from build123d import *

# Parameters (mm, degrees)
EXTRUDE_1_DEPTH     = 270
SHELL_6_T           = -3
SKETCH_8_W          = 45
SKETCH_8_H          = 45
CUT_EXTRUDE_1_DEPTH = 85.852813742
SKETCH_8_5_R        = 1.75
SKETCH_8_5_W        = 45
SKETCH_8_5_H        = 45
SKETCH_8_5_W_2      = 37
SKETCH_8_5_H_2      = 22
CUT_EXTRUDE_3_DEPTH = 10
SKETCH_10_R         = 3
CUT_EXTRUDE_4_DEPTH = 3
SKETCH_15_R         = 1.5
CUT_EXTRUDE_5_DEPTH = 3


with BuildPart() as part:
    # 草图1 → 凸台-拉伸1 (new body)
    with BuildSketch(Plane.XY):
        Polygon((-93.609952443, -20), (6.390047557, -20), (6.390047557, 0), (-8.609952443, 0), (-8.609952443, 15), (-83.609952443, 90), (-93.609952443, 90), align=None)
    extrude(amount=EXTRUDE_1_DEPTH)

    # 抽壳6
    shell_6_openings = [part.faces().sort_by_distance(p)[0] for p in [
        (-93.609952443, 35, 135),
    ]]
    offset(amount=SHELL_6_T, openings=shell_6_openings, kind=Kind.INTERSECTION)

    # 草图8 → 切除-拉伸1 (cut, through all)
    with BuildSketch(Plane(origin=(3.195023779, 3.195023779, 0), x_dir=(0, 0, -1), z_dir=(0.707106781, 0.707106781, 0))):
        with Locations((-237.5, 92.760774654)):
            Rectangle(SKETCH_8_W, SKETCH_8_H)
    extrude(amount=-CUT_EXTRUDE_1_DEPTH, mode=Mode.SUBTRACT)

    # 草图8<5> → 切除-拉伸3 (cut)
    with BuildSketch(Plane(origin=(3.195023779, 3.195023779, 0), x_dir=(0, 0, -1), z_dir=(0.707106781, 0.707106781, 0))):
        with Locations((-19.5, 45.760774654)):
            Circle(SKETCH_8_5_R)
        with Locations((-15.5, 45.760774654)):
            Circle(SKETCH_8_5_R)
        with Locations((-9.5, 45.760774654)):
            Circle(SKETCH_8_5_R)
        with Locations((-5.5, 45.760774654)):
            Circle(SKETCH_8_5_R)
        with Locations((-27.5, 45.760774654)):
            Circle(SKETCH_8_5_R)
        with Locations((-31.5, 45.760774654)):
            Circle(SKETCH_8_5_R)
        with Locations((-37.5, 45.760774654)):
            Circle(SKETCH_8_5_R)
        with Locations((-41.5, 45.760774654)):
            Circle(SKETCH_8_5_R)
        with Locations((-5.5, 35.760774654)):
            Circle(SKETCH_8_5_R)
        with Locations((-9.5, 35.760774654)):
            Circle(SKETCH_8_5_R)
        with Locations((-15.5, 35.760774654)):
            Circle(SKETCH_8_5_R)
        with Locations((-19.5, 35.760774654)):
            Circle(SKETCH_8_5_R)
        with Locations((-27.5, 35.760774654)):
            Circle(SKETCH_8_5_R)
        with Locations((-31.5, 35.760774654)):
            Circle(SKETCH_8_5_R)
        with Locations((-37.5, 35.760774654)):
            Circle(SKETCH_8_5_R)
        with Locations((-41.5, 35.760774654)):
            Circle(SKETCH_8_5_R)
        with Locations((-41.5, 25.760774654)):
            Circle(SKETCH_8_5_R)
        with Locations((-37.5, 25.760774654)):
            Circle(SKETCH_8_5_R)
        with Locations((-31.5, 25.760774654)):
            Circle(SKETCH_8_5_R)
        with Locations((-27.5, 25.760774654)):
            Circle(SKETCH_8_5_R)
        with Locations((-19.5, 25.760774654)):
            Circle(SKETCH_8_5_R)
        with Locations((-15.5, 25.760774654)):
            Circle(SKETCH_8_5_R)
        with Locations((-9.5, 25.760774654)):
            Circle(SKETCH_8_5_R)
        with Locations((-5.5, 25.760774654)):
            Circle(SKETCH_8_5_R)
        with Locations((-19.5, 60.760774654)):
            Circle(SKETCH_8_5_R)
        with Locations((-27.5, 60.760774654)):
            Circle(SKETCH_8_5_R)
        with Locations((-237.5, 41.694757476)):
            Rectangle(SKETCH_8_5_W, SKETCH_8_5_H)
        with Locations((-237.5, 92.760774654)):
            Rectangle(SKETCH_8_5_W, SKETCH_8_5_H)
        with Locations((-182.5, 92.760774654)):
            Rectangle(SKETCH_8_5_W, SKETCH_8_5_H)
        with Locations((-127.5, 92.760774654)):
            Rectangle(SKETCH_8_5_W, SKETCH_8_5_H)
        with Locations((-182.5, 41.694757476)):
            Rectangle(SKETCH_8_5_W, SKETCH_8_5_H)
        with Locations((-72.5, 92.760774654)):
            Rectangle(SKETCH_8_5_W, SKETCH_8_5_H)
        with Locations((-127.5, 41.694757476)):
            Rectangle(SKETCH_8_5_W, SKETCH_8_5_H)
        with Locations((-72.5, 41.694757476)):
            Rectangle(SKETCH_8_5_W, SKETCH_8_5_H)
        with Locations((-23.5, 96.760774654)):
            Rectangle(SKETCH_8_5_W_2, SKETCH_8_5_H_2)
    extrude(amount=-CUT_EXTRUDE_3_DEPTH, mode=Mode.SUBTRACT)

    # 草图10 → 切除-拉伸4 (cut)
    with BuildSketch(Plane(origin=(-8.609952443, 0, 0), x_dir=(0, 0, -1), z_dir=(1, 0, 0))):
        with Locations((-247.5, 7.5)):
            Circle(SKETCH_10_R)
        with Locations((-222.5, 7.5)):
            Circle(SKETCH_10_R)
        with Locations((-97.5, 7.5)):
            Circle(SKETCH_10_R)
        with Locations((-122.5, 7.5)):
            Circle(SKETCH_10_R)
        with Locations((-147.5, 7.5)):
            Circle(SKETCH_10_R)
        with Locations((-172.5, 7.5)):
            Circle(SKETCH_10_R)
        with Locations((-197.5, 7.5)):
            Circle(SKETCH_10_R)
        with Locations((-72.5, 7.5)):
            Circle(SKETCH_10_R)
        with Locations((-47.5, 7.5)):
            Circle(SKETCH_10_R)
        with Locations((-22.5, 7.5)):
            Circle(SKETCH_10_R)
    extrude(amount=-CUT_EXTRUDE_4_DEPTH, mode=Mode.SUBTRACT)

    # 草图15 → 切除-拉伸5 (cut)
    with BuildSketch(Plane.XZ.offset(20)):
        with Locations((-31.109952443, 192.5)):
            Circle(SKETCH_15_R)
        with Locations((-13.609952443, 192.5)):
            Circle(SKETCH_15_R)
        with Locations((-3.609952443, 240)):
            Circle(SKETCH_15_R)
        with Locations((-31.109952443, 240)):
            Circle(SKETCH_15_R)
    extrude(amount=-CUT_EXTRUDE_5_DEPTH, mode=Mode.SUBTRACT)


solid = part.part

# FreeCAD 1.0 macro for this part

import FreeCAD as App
import Part
import Sketcher

V = App.Vector


def faces_at(feature, points):
    """Names of the faces that lie closest to the given points."""
    faces = feature.Shape.Faces
    near = lambda p: min(range(len(faces)), key=lambda i: faces[i].distToShape(Part.Vertex(*p))[0])
    return sorted({f"Face{near(p) + 1}" for p in points})


def add_polygon(sketch, points):
    """Adds a closed chain of lines whose ends are joined by coincident constraints."""
    first, n = sketch.GeometryCount, len(points)
    for a, b in zip(points, points[1:] + points[:1]):
        sketch.addGeometry(Part.LineSegment(App.Vector(*a, 0), App.Vector(*b, 0)), False)
    for i in range(n):
        sketch.addConstraint(Sketcher.Constraint("Coincident", first + i, 2, first + (i + 1) % n, 1))

doc = App.newDocument("Part")
body = doc.addObject("PartDesign::Body", "Body")

# Sketch on XY plane
sketch1 = body.newObject("Sketcher::SketchObject", "Sketch")
sketch1.AttachmentSupport = (doc.getObject("XY_Plane"), [""])
sketch1.MapMode = "FlatFace"
add_polygon(sketch1, [(-93.609952, -20), (6.390048, -20), (6.390048, 0), (-8.609952, 0), (-8.609952, 15), (-83.609952, 90), (-93.609952, 90)])  # lines 0-6
sketch1.addConstraint([
    Sketcher.Constraint("Horizontal", 0),
    Sketcher.Constraint("Vertical", 1),
    Sketcher.Constraint("Horizontal", 2),
    Sketcher.Constraint("Vertical", 3),
    Sketcher.Constraint("Horizontal", 5),
    Sketcher.Constraint("Vertical", 6),
    Sketcher.Constraint("PointOnObject", 1, 2, -1),
    Sketcher.Constraint("Equal", 2, 3),
    Sketcher.Constraint("DistanceX", 0, 1, 0, 2, 100.0),
    Sketcher.Constraint("DistanceX", 2, 2, 2, 1, 15.0),
    Sketcher.Constraint("DistanceX", 5, 2, 5, 1, 10.0),
    Sketcher.Constraint("DistanceY", 1, 1, 1, 2, 20.0),
    Sketcher.Constraint("DistanceY", 6, 2, 6, 1, 110.0),
    Sketcher.Constraint("DistanceX", -1, 1, 0, 2, 6.390048),
])
pad1 = body.newObject("PartDesign::Pad", "Pad")
pad1.Profile = sketch1
pad1.Length = 270
doc.recompute()

thickness = body.newObject("PartDesign::Thickness", "Thickness")
thickness.Base = (pad1, faces_at(pad1, [(-93.61, 35, 135)]))
thickness.Value = 3
thickness.Reversed = True
thickness.Join = "Intersection"

# Sketch on an angled plane
sketch2 = body.newObject("Sketcher::SketchObject", "Sketch001")
sketch2.Placement = App.Placement(V(3.195024, 3.195024, 0), App.Rotation(V(0, 0, -1), V(-0.707106781, 0.707106781, 0), V(0.707106781, 0.707106781, 0), "ZXY"))
add_polygon(sketch2, [(-260, 115.260775), (-260, 70.260775), (-215, 70.260775), (-215, 115.260775)])  # lines 0-3
sketch2.addConstraint([
    Sketcher.Constraint("Vertical", 0),
    Sketcher.Constraint("Horizontal", 1),
    Sketcher.Constraint("Vertical", 2),
    Sketcher.Constraint("Horizontal", 3),
    Sketcher.Constraint("Equal", 3, 0),
    Sketcher.Constraint("DistanceX", 1, 1, 1, 2, 45.0),
    Sketcher.Constraint("DistanceX", 0, 2, -1, 1, 260.0),
    Sketcher.Constraint("DistanceY", -1, 1, 0, 2, 70.260775),
])
pocket1 = body.newObject("PartDesign::Pocket", "Pocket")
pocket1.Profile = sketch2
pocket1.Type = "ThroughAll"

# Sketch on an angled plane
sketch3 = body.newObject("Sketcher::SketchObject", "Sketch002")
sketch3.Placement = App.Placement(V(3.195024, 3.195024, 0), App.Rotation(V(0, 0, -1), V(-0.707106781, 0.707106781, 0), V(0.707106781, 0.707106781, 0), "ZXY"))
sketch3.addGeometry(Part.Circle(V(-19.5, 45.760775, 0), V(0, 0, 1), 1.75), False)  # 0
sketch3.addGeometry(Part.Circle(V(-15.5, 45.760775, 0), V(0, 0, 1), 1.75), False)  # 1
sketch3.addGeometry(Part.Circle(V(-9.5, 45.760775, 0), V(0, 0, 1), 1.75), False)  # 2
sketch3.addGeometry(Part.Circle(V(-5.5, 45.760775, 0), V(0, 0, 1), 1.75), False)  # 3
sketch3.addGeometry(Part.Circle(V(-27.5, 45.760775, 0), V(0, 0, 1), 1.75), False)  # 4
sketch3.addGeometry(Part.Circle(V(-31.5, 45.760775, 0), V(0, 0, 1), 1.75), False)  # 5
sketch3.addGeometry(Part.Circle(V(-37.5, 45.760775, 0), V(0, 0, 1), 1.75), False)  # 6
sketch3.addGeometry(Part.Circle(V(-41.5, 45.760775, 0), V(0, 0, 1), 1.75), False)  # 7
sketch3.addGeometry(Part.Circle(V(-5.5, 35.760775, 0), V(0, 0, 1), 1.75), False)  # 8
sketch3.addGeometry(Part.Circle(V(-9.5, 35.760775, 0), V(0, 0, 1), 1.75), False)  # 9
sketch3.addGeometry(Part.Circle(V(-15.5, 35.760775, 0), V(0, 0, 1), 1.75), False)  # 10
sketch3.addGeometry(Part.Circle(V(-19.5, 35.760775, 0), V(0, 0, 1), 1.75), False)  # 11
sketch3.addGeometry(Part.Circle(V(-27.5, 35.760775, 0), V(0, 0, 1), 1.75), False)  # 12
sketch3.addGeometry(Part.Circle(V(-31.5, 35.760775, 0), V(0, 0, 1), 1.75), False)  # 13
sketch3.addGeometry(Part.Circle(V(-37.5, 35.760775, 0), V(0, 0, 1), 1.75), False)  # 14
sketch3.addGeometry(Part.Circle(V(-41.5, 35.760775, 0), V(0, 0, 1), 1.75), False)  # 15
sketch3.addGeometry(Part.Circle(V(-41.5, 25.760775, 0), V(0, 0, 1), 1.75), False)  # 16
sketch3.addGeometry(Part.Circle(V(-37.5, 25.760775, 0), V(0, 0, 1), 1.75), False)  # 17
sketch3.addGeometry(Part.Circle(V(-31.5, 25.760775, 0), V(0, 0, 1), 1.75), False)  # 18
sketch3.addGeometry(Part.Circle(V(-27.5, 25.760775, 0), V(0, 0, 1), 1.75), False)  # 19
sketch3.addGeometry(Part.Circle(V(-19.5, 25.760775, 0), V(0, 0, 1), 1.75), False)  # 20
sketch3.addGeometry(Part.Circle(V(-15.5, 25.760775, 0), V(0, 0, 1), 1.75), False)  # 21
sketch3.addGeometry(Part.Circle(V(-9.5, 25.760775, 0), V(0, 0, 1), 1.75), False)  # 22
sketch3.addGeometry(Part.Circle(V(-5.5, 25.760775, 0), V(0, 0, 1), 1.75), False)  # 23
sketch3.addGeometry(Part.Circle(V(-19.5, 60.760775, 0), V(0, 0, 1), 1.75), False)  # 24
sketch3.addGeometry(Part.Circle(V(-27.5, 60.760775, 0), V(0, 0, 1), 1.75), False)  # 25
add_polygon(sketch3, [(-260, 64.194757), (-260, 19.194757), (-215, 19.194757), (-215, 64.194757)])  # lines 26-29
add_polygon(sketch3, [(-260, 115.260775), (-260, 70.260775), (-215, 70.260775), (-215, 115.260775)])  # lines 30-33
add_polygon(sketch3, [(-205, 115.260775), (-205, 70.260775), (-160, 70.260775), (-160, 115.260775)])  # lines 34-37
add_polygon(sketch3, [(-150, 115.260775), (-150, 70.260775), (-105, 70.260775), (-105, 115.260775)])  # lines 38-41
add_polygon(sketch3, [(-205, 64.194757), (-205, 19.194757), (-160, 19.194757), (-160, 64.194757)])  # lines 42-45
add_polygon(sketch3, [(-95, 115.260775), (-95, 70.260775), (-50, 70.260775), (-50, 115.260775)])  # lines 46-49
add_polygon(sketch3, [(-150, 64.194757), (-150, 19.194757), (-105, 19.194757), (-105, 64.194757)])  # lines 50-53
add_polygon(sketch3, [(-95, 64.194757), (-95, 19.194757), (-50, 19.194757), (-50, 64.194757)])  # lines 54-57
add_polygon(sketch3, [(-42, 107.760775), (-42, 85.760775), (-5, 85.760775), (-5, 107.760775)])  # lines 58-61
sketch3.addConstraint([
    Sketcher.Constraint("Vertical", 26),
    Sketcher.Constraint("Horizontal", 27),
    Sketcher.Constraint("Vertical", 28),
    Sketcher.Constraint("Horizontal", 29),
    Sketcher.Constraint("Vertical", 30),
    Sketcher.Constraint("Horizontal", 31),
    Sketcher.Constraint("Vertical", 32),
    Sketcher.Constraint("Horizontal", 33),
    Sketcher.Constraint("Vertical", 34),
    Sketcher.Constraint("Horizontal", 35),
    Sketcher.Constraint("Vertical", 36),
    Sketcher.Constraint("Horizontal", 37),
    Sketcher.Constraint("Vertical", 38),
    Sketcher.Constraint("Horizontal", 39),
    Sketcher.Constraint("Vertical", 40),
    Sketcher.Constraint("Horizontal", 41),
    Sketcher.Constraint("Vertical", 42),
    Sketcher.Constraint("Horizontal", 43),
    Sketcher.Constraint("Vertical", 44),
    Sketcher.Constraint("Horizontal", 45),
    Sketcher.Constraint("Vertical", 46),
    Sketcher.Constraint("Horizontal", 47),
    Sketcher.Constraint("Vertical", 48),
    Sketcher.Constraint("Horizontal", 49),
    Sketcher.Constraint("Vertical", 50),
    Sketcher.Constraint("Horizontal", 51),
    Sketcher.Constraint("Vertical", 52),
    Sketcher.Constraint("Horizontal", 53),
    Sketcher.Constraint("Vertical", 54),
    Sketcher.Constraint("Horizontal", 55),
    Sketcher.Constraint("Vertical", 56),
    Sketcher.Constraint("Horizontal", 57),
    Sketcher.Constraint("Vertical", 58),
    Sketcher.Constraint("Horizontal", 59),
    Sketcher.Constraint("Vertical", 60),
    Sketcher.Constraint("Horizontal", 61),
    Sketcher.Constraint("Equal", 0, 1),
    Sketcher.Constraint("Equal", 1, 2),
    Sketcher.Constraint("Equal", 2, 3),
    Sketcher.Constraint("Equal", 3, 4),
    Sketcher.Constraint("Equal", 4, 5),
    Sketcher.Constraint("Equal", 5, 6),
    Sketcher.Constraint("Equal", 6, 7),
    Sketcher.Constraint("Equal", 7, 8),
    Sketcher.Constraint("Equal", 8, 9),
    Sketcher.Constraint("Equal", 9, 10),
    Sketcher.Constraint("Equal", 10, 11),
    Sketcher.Constraint("Equal", 11, 12),
    Sketcher.Constraint("Equal", 12, 13),
    Sketcher.Constraint("Equal", 13, 14),
    Sketcher.Constraint("Equal", 14, 15),
    Sketcher.Constraint("Equal", 15, 16),
    Sketcher.Constraint("Equal", 16, 17),
    Sketcher.Constraint("Equal", 17, 18),
    Sketcher.Constraint("Equal", 18, 19),
    Sketcher.Constraint("Equal", 19, 20),
    Sketcher.Constraint("Equal", 20, 21),
    Sketcher.Constraint("Equal", 21, 22),
    Sketcher.Constraint("Equal", 22, 23),
    Sketcher.Constraint("Equal", 23, 24),
    Sketcher.Constraint("Equal", 24, 25),
    Sketcher.Constraint("Horizontal", 0, 3, 1, 3),
    Sketcher.Constraint("Horizontal", 1, 3, 2, 3),
    Sketcher.Constraint("Horizontal", 2, 3, 3, 3),
    Sketcher.Constraint("Horizontal", 3, 3, 4, 3),
    Sketcher.Constraint("Horizontal", 4, 3, 5, 3),
    Sketcher.Constraint("Horizontal", 5, 3, 6, 3),
    Sketcher.Constraint("Horizontal", 6, 3, 7, 3),
    Sketcher.Constraint("Horizontal", 8, 3, 9, 3),
    Sketcher.Constraint("Horizontal", 9, 3, 10, 3),
    Sketcher.Constraint("Horizontal", 10, 3, 11, 3),
    Sketcher.Constraint("Horizontal", 11, 3, 12, 3),
    Sketcher.Constraint("Horizontal", 12, 3, 13, 3),
    Sketcher.Constraint("Horizontal", 13, 3, 14, 3),
    Sketcher.Constraint("Horizontal", 14, 3, 15, 3),
    Sketcher.Constraint("Horizontal", 16, 3, 17, 3),
    Sketcher.Constraint("Horizontal", 17, 3, 18, 3),
    Sketcher.Constraint("Horizontal", 18, 3, 19, 3),
    Sketcher.Constraint("Horizontal", 19, 3, 20, 3),
    Sketcher.Constraint("Horizontal", 20, 3, 21, 3),
    Sketcher.Constraint("Horizontal", 21, 3, 22, 3),
    Sketcher.Constraint("Horizontal", 22, 3, 23, 3),
    Sketcher.Constraint("Horizontal", 24, 3, 25, 3),
    Sketcher.Constraint("Horizontal", 31, 2, 34, 2),
    Sketcher.Constraint("Horizontal", 33, 2, 36, 2),
    Sketcher.Constraint("Horizontal", 35, 2, 38, 2),
    Sketcher.Constraint("Horizontal", 37, 2, 40, 2),
    Sketcher.Constraint("Horizontal", 27, 2, 42, 2),
    Sketcher.Constraint("Horizontal", 29, 2, 44, 2),
    Sketcher.Constraint("Horizontal", 39, 2, 46, 2),
    Sketcher.Constraint("Horizontal", 41, 2, 48, 2),
    Sketcher.Constraint("Horizontal", 43, 2, 50, 2),
    Sketcher.Constraint("Horizontal", 45, 2, 52, 2),
    Sketcher.Constraint("Horizontal", 51, 2, 54, 2),
    Sketcher.Constraint("Horizontal", 53, 2, 56, 2),
    Sketcher.Constraint("Vertical", 3, 3, 8, 3),
    Sketcher.Constraint("Vertical", 2, 3, 9, 3),
    Sketcher.Constraint("Vertical", 1, 3, 10, 3),
    Sketcher.Constraint("Vertical", 0, 3, 11, 3),
    Sketcher.Constraint("Vertical", 4, 3, 12, 3),
    Sketcher.Constraint("Vertical", 5, 3, 13, 3),
    Sketcher.Constraint("Vertical", 6, 3, 14, 3),
    Sketcher.Constraint("Vertical", 7, 3, 15, 3),
    Sketcher.Constraint("Vertical", 15, 3, 16, 3),
    Sketcher.Constraint("Vertical", 14, 3, 17, 3),
    Sketcher.Constraint("Vertical", 13, 3, 18, 3),
    Sketcher.Constraint("Vertical", 12, 3, 19, 3),
    Sketcher.Constraint("Vertical", 11, 3, 20, 3),
    Sketcher.Constraint("Vertical", 10, 3, 21, 3),
    Sketcher.Constraint("Vertical", 9, 3, 22, 3),
    Sketcher.Constraint("Vertical", 8, 3, 23, 3),
    Sketcher.Constraint("Vertical", 20, 3, 24, 3),
    Sketcher.Constraint("Vertical", 19, 3, 25, 3),
    Sketcher.Constraint("Vertical", 29, 2, 30, 2),
    Sketcher.Constraint("Vertical", 28, 2, 31, 2),
    Sketcher.Constraint("Vertical", 37, 2, 42, 2),
    Sketcher.Constraint("Vertical", 36, 2, 43, 2),
    Sketcher.Constraint("Vertical", 41, 2, 50, 2),
    Sketcher.Constraint("Vertical", 40, 2, 51, 2),
    Sketcher.Constraint("Vertical", 49, 2, 54, 2),
    Sketcher.Constraint("Vertical", 48, 2, 55, 2),
    Sketcher.Constraint("Equal", 33, 35),
    Sketcher.Constraint("Equal", 37, 39),
    Sketcher.Constraint("Equal", 45, 47),
    Sketcher.Constraint("Equal", 57, 26),
    Sketcher.Constraint("Equal", 28, 30),
    Sketcher.Constraint("Diameter", 0, 3.5),
    Sketcher.Constraint("DistanceX", 27, 1, 27, 2, 45.0),
    Sketcher.Constraint("DistanceX", 59, 1, 59, 2, 37.0),
    Sketcher.Constraint("DistanceY", 58, 2, 58, 1, 22.0),
    Sketcher.Constraint("DistanceX", 26, 2, -1, 1, 260.0),
    Sketcher.Constraint("DistanceX", 34, 2, -1, 1, 205.0),
    Sketcher.Constraint("DistanceX", 38, 2, -1, 1, 150.0),
    Sketcher.Constraint("DistanceX", 46, 2, -1, 1, 95.0),
    Sketcher.Constraint("DistanceX", 58, 2, -1, 1, 42.0),
    Sketcher.Constraint("DistanceX", 0, 3, -1, 1, 19.5),
    Sketcher.Constraint("DistanceX", 1, 3, -1, 1, 15.5),
    Sketcher.Constraint("DistanceX", 2, 3, -1, 1, 9.5),
    Sketcher.Constraint("DistanceX", 3, 3, -1, 1, 5.5),
    Sketcher.Constraint("DistanceX", 4, 3, -1, 1, 27.5),
    Sketcher.Constraint("DistanceX", 5, 3, -1, 1, 31.5),
    Sketcher.Constraint("DistanceX", 6, 3, -1, 1, 37.5),
    Sketcher.Constraint("DistanceX", 7, 3, -1, 1, 41.5),
    Sketcher.Constraint("DistanceY", -1, 1, 0, 3, 45.760775),
    Sketcher.Constraint("DistanceY", -1, 1, 8, 3, 35.760775),
    Sketcher.Constraint("DistanceY", -1, 1, 16, 3, 25.760775),
    Sketcher.Constraint("DistanceY", -1, 1, 24, 3, 60.760775),
    Sketcher.Constraint("DistanceY", -1, 1, 26, 2, 19.194757),
    Sketcher.Constraint("DistanceY", -1, 1, 30, 2, 70.260775),
    Sketcher.Constraint("DistanceY", -1, 1, 58, 2, 85.760775),
])
pocket2 = body.newObject("PartDesign::Pocket", "Pocket001")
pocket2.Profile = sketch3
pocket2.Length = 10

# Sketch on YZ plane
sketch4 = body.newObject("Sketcher::SketchObject", "Sketch003")
sketch4.AttachmentSupport = (doc.getObject("YZ_Plane"), [""])
sketch4.MapMode = "FlatFace"
sketch4.AttachmentOffset = App.Placement(V(0, 0, -8.609952), App.Rotation())
sketch4.addGeometry([
    Part.Circle(V(7.5, 247.5, 0), V(0, 0, 1), 3),  # 0
    Part.Circle(V(7.5, 222.5, 0), V(0, 0, 1), 3),  # 1
    Part.Circle(V(7.5, 97.5, 0), V(0, 0, 1), 3),  # 2
    Part.Circle(V(7.5, 122.5, 0), V(0, 0, 1), 3),  # 3
    Part.Circle(V(7.5, 147.5, 0), V(0, 0, 1), 3),  # 4
    Part.Circle(V(7.5, 172.5, 0), V(0, 0, 1), 3),  # 5
    Part.Circle(V(7.5, 197.5, 0), V(0, 0, 1), 3),  # 6
    Part.Circle(V(7.5, 72.5, 0), V(0, 0, 1), 3),  # 7
    Part.Circle(V(7.5, 47.5, 0), V(0, 0, 1), 3),  # 8
    Part.Circle(V(7.5, 22.5, 0), V(0, 0, 1), 3),  # 9
], False)
sketch4.addConstraint([
    Sketcher.Constraint("Equal", 0, 1),
    Sketcher.Constraint("Equal", 1, 2),
    Sketcher.Constraint("Equal", 2, 3),
    Sketcher.Constraint("Equal", 3, 4),
    Sketcher.Constraint("Equal", 4, 5),
    Sketcher.Constraint("Equal", 5, 6),
    Sketcher.Constraint("Equal", 6, 7),
    Sketcher.Constraint("Equal", 7, 8),
    Sketcher.Constraint("Equal", 8, 9),
    Sketcher.Constraint("Vertical", 0, 3, 1, 3),
    Sketcher.Constraint("Vertical", 1, 3, 2, 3),
    Sketcher.Constraint("Vertical", 2, 3, 3, 3),
    Sketcher.Constraint("Vertical", 3, 3, 4, 3),
    Sketcher.Constraint("Vertical", 4, 3, 5, 3),
    Sketcher.Constraint("Vertical", 5, 3, 6, 3),
    Sketcher.Constraint("Vertical", 6, 3, 7, 3),
    Sketcher.Constraint("Vertical", 7, 3, 8, 3),
    Sketcher.Constraint("Vertical", 8, 3, 9, 3),
    Sketcher.Constraint("Diameter", 0, 6.0),
    Sketcher.Constraint("DistanceY", 1, 3, 0, 3, 25.0),
    Sketcher.Constraint("DistanceY", 2, 3, 1, 3, 125.0),
    Sketcher.Constraint("DistanceY", 2, 3, 3, 3, 25.0),
    Sketcher.Constraint("DistanceY", 3, 3, 4, 3, 25.0),
    Sketcher.Constraint("DistanceY", 4, 3, 5, 3, 25.0),
    Sketcher.Constraint("DistanceY", 6, 3, 1, 3, 25.0),
    Sketcher.Constraint("DistanceY", 7, 3, 2, 3, 25.0),
    Sketcher.Constraint("DistanceY", 8, 3, 7, 3, 25.0),
    Sketcher.Constraint("DistanceY", 9, 3, 8, 3, 25.0),
    Sketcher.Constraint("DistanceX", -1, 1, 0, 3, 7.5),
    Sketcher.Constraint("DistanceY", -1, 1, 0, 3, 247.5),
])
pocket3 = body.newObject("PartDesign::Pocket", "Pocket002")
pocket3.Profile = sketch4
pocket3.Length = 3

# Sketch on XZ plane
sketch5 = body.newObject("Sketcher::SketchObject", "Sketch004")
sketch5.AttachmentSupport = (doc.getObject("XZ_Plane"), [""])
sketch5.MapMode = "FlatFace"
sketch5.AttachmentOffset = App.Placement(V(0, 0, 20), App.Rotation())
sketch5.addGeometry([
    Part.Circle(V(-31.109952, 192.5, 0), V(0, 0, 1), 1.5),
    Part.Circle(V(-13.609952, 192.5, 0), V(0, 0, 1), 1.5),
    Part.Circle(V(-3.609952, 240, 0), V(0, 0, 1), 1.5),
    Part.Circle(V(-31.109952, 240, 0), V(0, 0, 1), 1.5),
], False)
sketch5.addConstraint([
    Sketcher.Constraint("Equal", 0, 1),
    Sketcher.Constraint("Equal", 1, 2),
    Sketcher.Constraint("Equal", 2, 3),
    Sketcher.Constraint("Horizontal", 0, 3, 1, 3),
    Sketcher.Constraint("Horizontal", 2, 3, 3, 3),
    Sketcher.Constraint("Vertical", 0, 3, 3, 3),
    Sketcher.Constraint("Diameter", 0, 3.0),
    Sketcher.Constraint("DistanceY", -1, 1, 2, 3, 240.0),
    Sketcher.Constraint("DistanceX", 1, 3, 2, 3, 10.0),
    Sketcher.Constraint("DistanceY", -1, 1, 0, 3, 192.5),
    Sketcher.Constraint("DistanceX", 0, 3, 1, 3, 17.5),
    Sketcher.Constraint("DistanceX", 0, 3, -1, 1, 31.109952),
])
pocket4 = body.newObject("PartDesign::Pocket", "Pocket003")
pocket4.Profile = sketch5
pocket4.Length = 3

doc.recompute()
